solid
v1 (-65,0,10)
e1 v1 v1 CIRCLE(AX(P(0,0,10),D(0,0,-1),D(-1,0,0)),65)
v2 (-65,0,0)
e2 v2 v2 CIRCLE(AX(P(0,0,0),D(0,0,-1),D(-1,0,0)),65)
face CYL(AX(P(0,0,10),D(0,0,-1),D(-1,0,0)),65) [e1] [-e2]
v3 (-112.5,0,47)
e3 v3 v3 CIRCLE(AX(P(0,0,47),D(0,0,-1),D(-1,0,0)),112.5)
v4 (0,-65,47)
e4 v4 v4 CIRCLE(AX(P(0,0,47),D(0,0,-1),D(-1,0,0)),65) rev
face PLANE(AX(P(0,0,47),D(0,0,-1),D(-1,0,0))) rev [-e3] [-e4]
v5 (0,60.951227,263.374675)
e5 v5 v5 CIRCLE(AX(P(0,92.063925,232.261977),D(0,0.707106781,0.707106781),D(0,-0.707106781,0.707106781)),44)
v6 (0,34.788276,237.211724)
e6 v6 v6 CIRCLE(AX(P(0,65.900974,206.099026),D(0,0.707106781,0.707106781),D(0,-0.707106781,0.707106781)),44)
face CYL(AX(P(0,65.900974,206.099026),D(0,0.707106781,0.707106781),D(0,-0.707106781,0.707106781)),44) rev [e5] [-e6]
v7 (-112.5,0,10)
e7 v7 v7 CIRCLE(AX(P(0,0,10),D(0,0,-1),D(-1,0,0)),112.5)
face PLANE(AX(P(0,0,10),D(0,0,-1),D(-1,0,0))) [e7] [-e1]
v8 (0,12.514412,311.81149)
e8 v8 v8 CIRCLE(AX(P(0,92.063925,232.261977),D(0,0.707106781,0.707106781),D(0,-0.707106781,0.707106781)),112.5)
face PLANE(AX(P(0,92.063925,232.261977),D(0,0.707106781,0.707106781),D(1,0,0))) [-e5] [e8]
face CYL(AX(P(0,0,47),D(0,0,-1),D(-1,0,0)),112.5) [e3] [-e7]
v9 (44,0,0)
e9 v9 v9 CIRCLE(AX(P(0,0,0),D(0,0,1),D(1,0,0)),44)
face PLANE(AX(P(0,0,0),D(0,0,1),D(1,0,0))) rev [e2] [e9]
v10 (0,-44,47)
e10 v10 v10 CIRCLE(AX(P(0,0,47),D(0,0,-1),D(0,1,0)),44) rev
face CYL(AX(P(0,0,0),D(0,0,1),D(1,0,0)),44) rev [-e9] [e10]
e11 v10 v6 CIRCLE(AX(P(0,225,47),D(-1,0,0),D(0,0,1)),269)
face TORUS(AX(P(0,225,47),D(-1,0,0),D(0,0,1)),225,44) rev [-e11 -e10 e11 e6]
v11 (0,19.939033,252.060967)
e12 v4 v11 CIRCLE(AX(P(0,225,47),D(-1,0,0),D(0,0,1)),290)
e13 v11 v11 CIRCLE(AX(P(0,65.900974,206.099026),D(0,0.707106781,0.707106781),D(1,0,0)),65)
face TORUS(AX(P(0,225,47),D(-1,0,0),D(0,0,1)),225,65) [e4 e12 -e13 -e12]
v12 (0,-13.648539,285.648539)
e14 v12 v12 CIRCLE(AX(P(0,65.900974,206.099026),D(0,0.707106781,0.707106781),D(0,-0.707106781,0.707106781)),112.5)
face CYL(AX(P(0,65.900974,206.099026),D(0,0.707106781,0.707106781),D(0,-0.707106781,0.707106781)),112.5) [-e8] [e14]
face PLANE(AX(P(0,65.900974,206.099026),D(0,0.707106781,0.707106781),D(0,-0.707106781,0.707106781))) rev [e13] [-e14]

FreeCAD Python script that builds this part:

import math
import FreeCAD as App
import Part
import Sketcher
from FreeCAD import Vector
Q = App.Units.Quantity

doc = App.newDocument("Part")
params = doc.addObject("Spreadsheet::Sheet", "Params")
for row, (alias, value) in enumerate([
    ("sketch1_diameter", "130 mm"),
    ("sketch1_diameter2", "88 mm"),
    ("sketch2_radius", "225 mm"),
    ("sketch2_height", "47 mm"),
    ("sketch2_length", "37 mm"),
    ("sketch3_diameter", "225 mm"),
    ("sketch3_diameter2", "88 mm"),
    ("pad1_length", "47 mm"),
    ("sketch4_diameter", "225 mm"),
    ("sketch4_diameter2", "130 mm"),
    ("pocket1_length", "10 mm"),
    ("sketch5_diameter", "225 mm"),
    ("sketch5_diameter2", "88 mm"),
    ("pad2_length", "37 mm"),
], start=1):
    params.set(f"A{row}", alias)
    params.set(f"B{row}", "=" + value)
    params.setAlias(f"B{row}", alias)

body = doc.addObject("PartDesign::Body", "Body")

# Sketch on XY plane
sketch1 = body.newObject("Sketcher::SketchObject", "Sketch")
sketch1.AttachmentSupport = (doc.getObject("XY_Plane"), [""])
sketch1.MapMode = "FlatFace"
sketch1.addGeometry([
    Part.Circle(Vector(0, 0, 0), Vector(0, 0, 1), 65),
    Part.Circle(Vector(0, 0, 0), Vector(0, 0, 1), 44),
], False)
sketch1.addConstraint([
    Sketcher.Constraint("Coincident", 0, 3, -1, 1),
    Sketcher.Constraint("Coincident", 1, 3, -1, 1),
    Sketcher.Constraint("Diameter", 0, Q("130 mm")),
    Sketcher.Constraint("Diameter", 1, Q("88 mm")),
])
sketch1.setExpression("Constraints[2]", "Params.sketch1_diameter")
sketch1.setExpression("Constraints[3]", "Params.sketch1_diameter2")

# Sketch on YZ plane
sketch2 = body.newObject("Sketcher::SketchObject", "Sketch001")
sketch2.AttachmentSupport = (doc.getObject("YZ_Plane"), [""])
sketch2.MapMode = "FlatFace"
sketch2.addGeometry([
    Part.LineSegment(Vector(0, 0, 0), Vector(0, 47, 0)),
    Part.ArcOfCircle(Part.Circle(Vector(225, 47, 0), Vector(0, 0, 1), 225), math.radians(135), math.radians(180)),
    Part.LineSegment(Vector(65.900974, 206.099026, 0), Vector(92.063925, 232.261977, 0)),
], False)
sketch2.addConstraint([
    Sketcher.Constraint("Tangent", 0, 2, 1, 2),
    Sketcher.Constraint("Tangent", 1, 1, 2, 1),
    Sketcher.Constraint("Vertical", 0),
    Sketcher.Constraint("Coincident", 0, 1, -1, 1),
    Sketcher.Constraint("Radius", 1, Q("225 mm")),
    Sketcher.Constraint("DistanceY", 0, 1, 0, 2, Q("47 mm")),
    Sketcher.Constraint("Angle", 2, Q("45 deg")),
    Sketcher.Constraint("Distance", 2, Q("37 mm")),
])
sketch2.setExpression("Constraints[4]", "Params.sketch2_radius")
sketch2.setExpression("Constraints[5]", "Params.sketch2_height")
sketch2.setExpression("Constraints[7]", "Params.sketch2_length")
doc.recompute()

additivepipe = body.newObject("PartDesign::AdditivePipe", "AdditivePipe")
additivepipe.Profile = sketch1
additivepipe.Spine = (sketch2, ["Edge1", "Edge2", "Edge3"])

# Sketch on XY plane
sketch3 = body.newObject("Sketcher::SketchObject", "Sketch002")
sketch3.AttachmentSupport = (doc.getObject("XY_Plane"), [""])
sketch3.MapMode = "FlatFace"
sketch3.AttachmentOffset = App.Placement(Vector(0, 0, 47), App.Rotation())
sketch3.addGeometry([
    Part.Circle(Vector(0, 0, 0), Vector(0, 0, 1), 112.5),
    Part.Circle(Vector(0, 0, 0), Vector(0, 0, 1), 44),
], False)
sketch3.addConstraint([
    Sketcher.Constraint("Coincident", 0, 3, -1, 1),
    Sketcher.Constraint("Coincident", 1, 3, -1, 1),
    Sketcher.Constraint("Diameter", 0, Q("225 mm")),
    Sketcher.Constraint("Diameter", 1, Q("88 mm")),
])
sketch3.setExpression("Constraints[2]", "Params.sketch3_diameter")
sketch3.setExpression("Constraints[3]", "Params.sketch3_diameter2")
pad1 = body.newObject("PartDesign::Pad", "Pad")
pad1.Profile = sketch3
pad1.setExpression("Length", "Params.pad1_length")
pad1.Reversed = True

# Sketch on XY plane
sketch4 = body.newObject("Sketcher::SketchObject", "Sketch003")
sketch4.AttachmentSupport = (doc.getObject("XY_Plane"), [""])
sketch4.MapMode = "FlatFace"
sketch4.AttachmentOffset = App.Placement(Vector(0, 0, 10), App.Rotation())
sketch4.addGeometry([
    Part.Circle(Vector(0, 0, 0), Vector(0, 0, 1), 112.5),
    Part.Circle(Vector(0, 0, 0), Vector(0, 0, 1), 65),
], False)
sketch4.addConstraint([
    Sketcher.Constraint("Coincident", 0, 3, -1, 1),
    Sketcher.Constraint("Coincident", 1, 3, -1, 1),
    Sketcher.Constraint("Diameter", 0, Q("225 mm")),
    Sketcher.Constraint("Diameter", 1, Q("130 mm")),
])
sketch4.setExpression("Constraints[2]", "Params.sketch4_diameter")
sketch4.setExpression("Constraints[3]", "Params.sketch4_diameter2")
pocket1 = body.newObject("PartDesign::Pocket", "Pocket")
pocket1.Profile = sketch4
pocket1.setExpression("Length", "Params.pocket1_length")

# Sketch on an angled plane
sketch5 = body.newObject("Sketcher::SketchObject", "Sketch004")
sketch5.Placement = App.Placement(Vector(0, 162.162951, 162.162951), App.Rotation(Vector(1, 0, 0), Vector(0, 0.707106781, -0.707106781), Vector(0, 0.707106781, 0.707106781), "ZXY"))
sketch5.addGeometry([
    Part.Circle(Vector(0, -99.134993, 0), Vector(0, 0, 1), 112.5),
    Part.Circle(Vector(0, -99.134993, 0), Vector(0, 0, 1), 44),
], False)
sketch5.addConstraint([
    Sketcher.Constraint("Coincident", 1, 3, 0, 3),
    Sketcher.Constraint("PointOnObject", 0, 3, -2),
    Sketcher.Constraint("Diameter", 0, Q("225 mm")),
    Sketcher.Constraint("Diameter", 1, Q("88 mm")),
    Sketcher.Constraint("DistanceY", 0, 3, -1, 1, Q("99.134993 mm")),
])
sketch5.setExpression("Constraints[2]", "Params.sketch5_diameter")
sketch5.setExpression("Constraints[3]", "Params.sketch5_diameter2")
pad2 = body.newObject("PartDesign::Pad", "Pad001")
pad2.Profile = sketch5
pad2.setExpression("Length", "Params.pad2_length")
pad2.Reversed = True

doc.recompute()
